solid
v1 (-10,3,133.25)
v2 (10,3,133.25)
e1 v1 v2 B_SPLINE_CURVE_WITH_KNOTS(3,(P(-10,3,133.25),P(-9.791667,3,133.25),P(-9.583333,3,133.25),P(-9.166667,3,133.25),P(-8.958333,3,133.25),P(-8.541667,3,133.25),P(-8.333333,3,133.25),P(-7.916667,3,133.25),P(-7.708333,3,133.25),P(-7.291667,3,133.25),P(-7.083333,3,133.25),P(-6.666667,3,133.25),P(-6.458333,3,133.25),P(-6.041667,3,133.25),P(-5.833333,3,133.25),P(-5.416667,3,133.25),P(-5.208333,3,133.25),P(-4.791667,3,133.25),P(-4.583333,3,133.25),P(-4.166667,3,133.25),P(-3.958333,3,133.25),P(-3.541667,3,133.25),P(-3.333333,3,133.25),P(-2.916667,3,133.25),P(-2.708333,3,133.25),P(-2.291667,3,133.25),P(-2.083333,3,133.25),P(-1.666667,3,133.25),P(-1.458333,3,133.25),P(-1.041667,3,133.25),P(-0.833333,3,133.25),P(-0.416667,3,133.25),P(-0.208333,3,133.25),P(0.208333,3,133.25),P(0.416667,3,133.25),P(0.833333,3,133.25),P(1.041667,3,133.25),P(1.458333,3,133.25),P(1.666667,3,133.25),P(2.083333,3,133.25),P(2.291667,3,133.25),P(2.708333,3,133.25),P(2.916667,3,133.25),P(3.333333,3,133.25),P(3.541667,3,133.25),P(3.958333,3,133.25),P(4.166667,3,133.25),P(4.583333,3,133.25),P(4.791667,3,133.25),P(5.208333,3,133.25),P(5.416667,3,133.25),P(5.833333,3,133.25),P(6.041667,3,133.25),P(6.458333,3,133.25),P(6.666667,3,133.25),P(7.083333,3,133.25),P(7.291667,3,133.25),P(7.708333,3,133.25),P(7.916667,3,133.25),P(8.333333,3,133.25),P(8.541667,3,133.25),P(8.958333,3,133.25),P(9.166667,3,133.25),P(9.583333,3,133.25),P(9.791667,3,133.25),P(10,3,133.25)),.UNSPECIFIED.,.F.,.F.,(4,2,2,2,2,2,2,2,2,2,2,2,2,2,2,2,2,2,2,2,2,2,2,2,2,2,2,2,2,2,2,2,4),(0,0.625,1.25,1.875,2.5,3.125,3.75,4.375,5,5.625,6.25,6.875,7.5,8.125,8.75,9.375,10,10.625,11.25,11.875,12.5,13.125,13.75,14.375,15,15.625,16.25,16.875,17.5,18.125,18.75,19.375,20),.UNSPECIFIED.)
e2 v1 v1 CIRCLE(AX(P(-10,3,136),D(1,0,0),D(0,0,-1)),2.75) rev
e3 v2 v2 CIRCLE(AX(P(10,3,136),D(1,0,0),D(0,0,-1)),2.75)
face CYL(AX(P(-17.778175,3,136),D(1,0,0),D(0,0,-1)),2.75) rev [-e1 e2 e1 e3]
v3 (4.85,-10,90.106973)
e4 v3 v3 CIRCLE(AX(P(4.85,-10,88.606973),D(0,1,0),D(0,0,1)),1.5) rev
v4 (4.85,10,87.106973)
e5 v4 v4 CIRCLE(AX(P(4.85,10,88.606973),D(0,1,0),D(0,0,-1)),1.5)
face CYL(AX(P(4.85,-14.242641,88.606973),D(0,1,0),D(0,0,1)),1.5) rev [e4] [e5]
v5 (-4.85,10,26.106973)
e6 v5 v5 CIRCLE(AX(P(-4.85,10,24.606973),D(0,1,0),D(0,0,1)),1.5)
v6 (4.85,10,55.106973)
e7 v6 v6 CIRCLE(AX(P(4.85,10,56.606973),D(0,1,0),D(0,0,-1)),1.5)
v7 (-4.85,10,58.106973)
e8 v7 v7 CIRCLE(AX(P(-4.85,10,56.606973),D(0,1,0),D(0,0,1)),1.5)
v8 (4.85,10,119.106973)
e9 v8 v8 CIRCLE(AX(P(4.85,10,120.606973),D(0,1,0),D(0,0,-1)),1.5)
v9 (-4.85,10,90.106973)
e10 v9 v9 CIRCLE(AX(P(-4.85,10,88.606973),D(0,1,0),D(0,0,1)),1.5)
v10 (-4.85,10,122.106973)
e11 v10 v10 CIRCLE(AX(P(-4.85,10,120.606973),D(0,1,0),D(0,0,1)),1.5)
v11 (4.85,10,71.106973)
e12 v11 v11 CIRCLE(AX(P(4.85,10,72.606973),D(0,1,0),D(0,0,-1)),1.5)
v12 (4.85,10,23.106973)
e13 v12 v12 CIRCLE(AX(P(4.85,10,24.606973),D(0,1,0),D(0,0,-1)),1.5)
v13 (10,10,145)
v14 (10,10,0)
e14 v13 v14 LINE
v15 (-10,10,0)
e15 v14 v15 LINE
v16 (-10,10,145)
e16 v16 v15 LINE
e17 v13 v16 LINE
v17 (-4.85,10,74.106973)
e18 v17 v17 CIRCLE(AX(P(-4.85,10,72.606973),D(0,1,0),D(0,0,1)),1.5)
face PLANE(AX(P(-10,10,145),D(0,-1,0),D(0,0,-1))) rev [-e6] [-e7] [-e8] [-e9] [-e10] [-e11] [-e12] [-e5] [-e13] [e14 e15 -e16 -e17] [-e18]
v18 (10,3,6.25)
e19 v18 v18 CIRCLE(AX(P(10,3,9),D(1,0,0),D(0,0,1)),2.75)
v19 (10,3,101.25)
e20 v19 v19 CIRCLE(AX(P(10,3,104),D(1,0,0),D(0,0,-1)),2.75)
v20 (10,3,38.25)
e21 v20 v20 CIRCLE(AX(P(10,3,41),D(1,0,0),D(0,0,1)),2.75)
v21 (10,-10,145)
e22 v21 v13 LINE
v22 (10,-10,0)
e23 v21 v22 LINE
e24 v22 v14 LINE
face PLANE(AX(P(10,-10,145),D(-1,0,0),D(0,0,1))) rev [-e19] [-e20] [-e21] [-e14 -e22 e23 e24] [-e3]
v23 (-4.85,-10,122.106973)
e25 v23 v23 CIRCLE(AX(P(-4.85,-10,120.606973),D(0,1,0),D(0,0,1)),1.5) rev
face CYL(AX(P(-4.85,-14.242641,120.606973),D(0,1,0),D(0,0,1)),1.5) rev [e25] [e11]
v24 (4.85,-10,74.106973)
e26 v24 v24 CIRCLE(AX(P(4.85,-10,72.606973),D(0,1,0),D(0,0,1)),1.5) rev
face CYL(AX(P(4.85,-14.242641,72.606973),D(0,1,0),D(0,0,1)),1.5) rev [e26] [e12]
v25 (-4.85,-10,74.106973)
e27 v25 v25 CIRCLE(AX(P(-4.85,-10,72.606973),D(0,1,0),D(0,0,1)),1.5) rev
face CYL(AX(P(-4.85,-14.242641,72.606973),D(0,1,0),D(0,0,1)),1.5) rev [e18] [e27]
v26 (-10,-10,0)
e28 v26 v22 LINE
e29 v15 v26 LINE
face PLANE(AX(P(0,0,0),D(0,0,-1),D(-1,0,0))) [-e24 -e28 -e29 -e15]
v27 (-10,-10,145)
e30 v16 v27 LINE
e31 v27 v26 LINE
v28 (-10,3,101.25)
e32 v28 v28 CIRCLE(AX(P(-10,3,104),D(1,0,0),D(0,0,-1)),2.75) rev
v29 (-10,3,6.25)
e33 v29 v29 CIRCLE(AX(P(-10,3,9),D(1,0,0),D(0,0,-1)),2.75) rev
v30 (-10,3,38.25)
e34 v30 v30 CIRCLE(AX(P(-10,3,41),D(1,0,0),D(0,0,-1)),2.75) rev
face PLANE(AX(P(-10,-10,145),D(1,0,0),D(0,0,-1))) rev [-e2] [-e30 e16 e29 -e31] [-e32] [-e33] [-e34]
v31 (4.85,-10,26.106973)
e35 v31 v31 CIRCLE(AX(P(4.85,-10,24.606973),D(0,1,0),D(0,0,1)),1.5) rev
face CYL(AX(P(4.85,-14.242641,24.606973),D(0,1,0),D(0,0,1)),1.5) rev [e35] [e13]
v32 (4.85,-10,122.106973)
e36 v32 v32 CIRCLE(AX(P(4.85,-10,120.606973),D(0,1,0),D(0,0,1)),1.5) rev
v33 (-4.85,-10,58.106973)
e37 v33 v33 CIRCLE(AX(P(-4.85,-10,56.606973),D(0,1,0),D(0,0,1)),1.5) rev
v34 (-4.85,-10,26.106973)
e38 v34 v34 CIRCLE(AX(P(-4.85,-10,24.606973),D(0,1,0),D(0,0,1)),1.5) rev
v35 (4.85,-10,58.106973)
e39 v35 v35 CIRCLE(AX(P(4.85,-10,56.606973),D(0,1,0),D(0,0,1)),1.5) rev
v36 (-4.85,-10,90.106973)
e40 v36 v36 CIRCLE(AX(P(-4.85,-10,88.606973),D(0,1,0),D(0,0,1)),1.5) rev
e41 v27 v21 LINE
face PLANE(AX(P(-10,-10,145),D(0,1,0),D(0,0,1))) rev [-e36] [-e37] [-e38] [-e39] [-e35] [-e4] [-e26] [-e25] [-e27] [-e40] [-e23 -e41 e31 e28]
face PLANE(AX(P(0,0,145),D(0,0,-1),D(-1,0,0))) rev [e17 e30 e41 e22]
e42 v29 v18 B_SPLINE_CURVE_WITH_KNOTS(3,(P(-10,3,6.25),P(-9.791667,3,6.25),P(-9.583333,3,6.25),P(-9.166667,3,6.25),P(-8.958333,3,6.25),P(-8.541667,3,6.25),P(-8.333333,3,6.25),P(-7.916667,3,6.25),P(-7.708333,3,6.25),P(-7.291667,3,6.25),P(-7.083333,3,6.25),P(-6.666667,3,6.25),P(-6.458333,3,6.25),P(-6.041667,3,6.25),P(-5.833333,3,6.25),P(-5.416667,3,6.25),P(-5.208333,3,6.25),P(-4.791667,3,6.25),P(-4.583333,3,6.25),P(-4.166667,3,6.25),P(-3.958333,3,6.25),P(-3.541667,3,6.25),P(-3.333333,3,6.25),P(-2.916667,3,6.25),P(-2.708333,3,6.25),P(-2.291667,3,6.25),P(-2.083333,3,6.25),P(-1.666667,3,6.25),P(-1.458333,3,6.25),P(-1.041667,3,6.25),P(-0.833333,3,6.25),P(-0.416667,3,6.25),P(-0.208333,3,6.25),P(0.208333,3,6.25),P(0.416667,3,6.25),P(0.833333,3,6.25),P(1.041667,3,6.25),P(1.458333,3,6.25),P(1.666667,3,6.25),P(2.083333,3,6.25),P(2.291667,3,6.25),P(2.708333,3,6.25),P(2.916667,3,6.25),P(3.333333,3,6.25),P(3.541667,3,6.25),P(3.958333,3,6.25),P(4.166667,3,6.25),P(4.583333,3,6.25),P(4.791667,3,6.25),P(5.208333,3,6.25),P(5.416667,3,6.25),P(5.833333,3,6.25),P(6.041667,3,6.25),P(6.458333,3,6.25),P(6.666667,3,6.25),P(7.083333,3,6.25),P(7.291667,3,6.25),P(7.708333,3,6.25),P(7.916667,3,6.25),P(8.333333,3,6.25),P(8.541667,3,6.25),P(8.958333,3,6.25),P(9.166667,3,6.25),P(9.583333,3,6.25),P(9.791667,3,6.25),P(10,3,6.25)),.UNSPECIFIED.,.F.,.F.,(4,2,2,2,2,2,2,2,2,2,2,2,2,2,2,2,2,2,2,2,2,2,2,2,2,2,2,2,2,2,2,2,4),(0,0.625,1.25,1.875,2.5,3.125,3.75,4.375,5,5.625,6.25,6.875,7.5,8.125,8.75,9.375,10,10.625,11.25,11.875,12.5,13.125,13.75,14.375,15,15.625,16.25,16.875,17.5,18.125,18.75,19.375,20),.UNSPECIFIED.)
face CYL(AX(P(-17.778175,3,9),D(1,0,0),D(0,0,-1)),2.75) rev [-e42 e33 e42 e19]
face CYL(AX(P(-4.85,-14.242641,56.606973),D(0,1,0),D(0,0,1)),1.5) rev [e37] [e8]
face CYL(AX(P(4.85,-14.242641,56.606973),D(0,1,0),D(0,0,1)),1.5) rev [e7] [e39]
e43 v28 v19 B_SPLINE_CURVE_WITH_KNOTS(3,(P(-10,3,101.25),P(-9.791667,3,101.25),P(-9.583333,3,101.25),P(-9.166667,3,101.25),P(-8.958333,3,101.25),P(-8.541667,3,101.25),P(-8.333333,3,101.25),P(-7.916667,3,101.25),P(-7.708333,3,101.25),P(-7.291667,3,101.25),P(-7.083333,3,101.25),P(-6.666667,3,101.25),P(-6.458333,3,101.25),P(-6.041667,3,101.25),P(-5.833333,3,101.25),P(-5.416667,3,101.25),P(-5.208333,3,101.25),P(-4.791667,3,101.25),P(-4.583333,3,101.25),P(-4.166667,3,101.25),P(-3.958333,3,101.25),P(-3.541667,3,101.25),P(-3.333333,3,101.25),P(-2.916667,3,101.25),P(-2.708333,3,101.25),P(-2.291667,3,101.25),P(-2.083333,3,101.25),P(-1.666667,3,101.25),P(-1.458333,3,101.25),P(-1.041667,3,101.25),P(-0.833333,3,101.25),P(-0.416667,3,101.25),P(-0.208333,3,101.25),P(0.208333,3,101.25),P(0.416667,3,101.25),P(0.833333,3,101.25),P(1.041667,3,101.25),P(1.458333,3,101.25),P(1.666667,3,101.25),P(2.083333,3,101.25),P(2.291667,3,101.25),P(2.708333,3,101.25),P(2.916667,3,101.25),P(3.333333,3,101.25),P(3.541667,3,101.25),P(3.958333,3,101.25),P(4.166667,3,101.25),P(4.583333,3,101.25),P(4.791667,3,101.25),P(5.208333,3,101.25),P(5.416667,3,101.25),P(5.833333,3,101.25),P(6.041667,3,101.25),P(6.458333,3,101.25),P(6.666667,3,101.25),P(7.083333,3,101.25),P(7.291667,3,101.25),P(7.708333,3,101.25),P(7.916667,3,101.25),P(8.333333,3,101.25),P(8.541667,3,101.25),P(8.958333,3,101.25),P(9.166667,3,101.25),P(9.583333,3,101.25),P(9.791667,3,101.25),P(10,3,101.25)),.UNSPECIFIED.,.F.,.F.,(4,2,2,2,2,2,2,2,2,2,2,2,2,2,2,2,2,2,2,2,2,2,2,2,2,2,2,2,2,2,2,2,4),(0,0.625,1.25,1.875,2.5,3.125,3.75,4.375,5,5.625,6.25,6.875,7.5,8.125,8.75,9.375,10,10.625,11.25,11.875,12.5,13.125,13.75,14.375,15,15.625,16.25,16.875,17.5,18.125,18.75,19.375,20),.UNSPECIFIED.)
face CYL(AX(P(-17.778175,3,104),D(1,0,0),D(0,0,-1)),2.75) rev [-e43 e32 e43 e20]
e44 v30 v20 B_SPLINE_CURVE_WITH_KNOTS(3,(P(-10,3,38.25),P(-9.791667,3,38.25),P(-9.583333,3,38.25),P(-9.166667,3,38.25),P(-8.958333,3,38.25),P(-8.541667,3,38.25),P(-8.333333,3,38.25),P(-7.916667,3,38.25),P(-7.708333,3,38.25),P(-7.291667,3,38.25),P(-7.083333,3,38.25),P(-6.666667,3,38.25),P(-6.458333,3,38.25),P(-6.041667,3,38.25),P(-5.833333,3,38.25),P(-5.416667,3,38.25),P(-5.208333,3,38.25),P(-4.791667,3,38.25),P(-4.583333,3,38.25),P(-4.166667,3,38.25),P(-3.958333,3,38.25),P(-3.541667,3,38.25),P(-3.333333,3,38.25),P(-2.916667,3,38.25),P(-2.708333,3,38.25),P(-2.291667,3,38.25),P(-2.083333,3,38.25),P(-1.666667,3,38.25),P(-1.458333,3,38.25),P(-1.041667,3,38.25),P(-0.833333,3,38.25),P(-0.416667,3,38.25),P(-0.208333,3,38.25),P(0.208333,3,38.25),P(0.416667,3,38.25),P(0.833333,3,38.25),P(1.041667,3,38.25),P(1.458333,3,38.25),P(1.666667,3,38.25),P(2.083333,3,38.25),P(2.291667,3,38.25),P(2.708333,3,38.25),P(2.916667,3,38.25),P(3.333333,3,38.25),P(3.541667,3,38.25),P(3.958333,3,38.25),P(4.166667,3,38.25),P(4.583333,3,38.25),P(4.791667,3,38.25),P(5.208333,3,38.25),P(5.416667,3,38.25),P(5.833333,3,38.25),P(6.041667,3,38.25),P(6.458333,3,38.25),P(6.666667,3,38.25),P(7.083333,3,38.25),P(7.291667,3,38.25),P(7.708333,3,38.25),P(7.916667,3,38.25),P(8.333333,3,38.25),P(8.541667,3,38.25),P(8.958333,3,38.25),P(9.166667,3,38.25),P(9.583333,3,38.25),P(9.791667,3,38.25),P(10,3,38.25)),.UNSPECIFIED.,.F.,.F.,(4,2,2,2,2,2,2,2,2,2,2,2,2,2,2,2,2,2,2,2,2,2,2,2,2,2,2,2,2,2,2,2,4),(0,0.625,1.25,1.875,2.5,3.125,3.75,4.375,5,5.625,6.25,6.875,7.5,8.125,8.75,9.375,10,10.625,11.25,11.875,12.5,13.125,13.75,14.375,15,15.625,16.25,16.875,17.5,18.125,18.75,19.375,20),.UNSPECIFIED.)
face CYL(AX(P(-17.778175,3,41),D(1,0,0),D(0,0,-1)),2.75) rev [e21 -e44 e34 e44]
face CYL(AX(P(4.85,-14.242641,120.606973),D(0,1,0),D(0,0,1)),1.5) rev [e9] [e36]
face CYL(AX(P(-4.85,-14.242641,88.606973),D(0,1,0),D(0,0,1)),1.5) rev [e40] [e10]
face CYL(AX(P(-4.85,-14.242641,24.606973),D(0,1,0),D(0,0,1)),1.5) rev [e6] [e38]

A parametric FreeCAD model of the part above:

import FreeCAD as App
import Part
import Sketcher

V = App.Vector


def add_polygon(sketch, points):
    """Adds a closed chain of lines whose ends are joined by coincident constraints."""
    first, n = sketch.GeometryCount, len(points)
    for a, b in zip(points, points[1:] + points[:1]):
        sketch.addGeometry(Part.LineSegment(App.Vector(*a, 0), App.Vector(*b, 0)), False)
    for i in range(n):
        sketch.addConstraint(Sketcher.Constraint("Coincident", first + i, 2, first + (i + 1) % n, 1))

doc = App.newDocument("Part")
body = doc.addObject("PartDesign::Body", "Body")

# Sketch on XY plane
sketch1 = doc.addObject("Sketcher::SketchObject", "Sketch")
body.addObject(sketch1)
sketch1.AttachmentSupport = (doc.XY_Plane, [""])
sketch1.MapMode = "FlatFace"
add_polygon(sketch1, [(-10, 10), (-10, -10), (10, -10), (10, 10)])  # lines 0-3
sketch1.addConstraint([
    Sketcher.Constraint("Vertical", 0),
    Sketcher.Constraint("Horizontal", 1),
    Sketcher.Constraint("Vertical", 2),
    Sketcher.Constraint("Horizontal", 3),
    Sketcher.Constraint("Symmetric", 0, 2, 2, 2, -1, 1),
    Sketcher.Constraint("Equal", 3, 0),
    Sketcher.Constraint("DistanceX", 1, 1, 1, 2, 20.0),
])
pad1 = doc.addObject("PartDesign::Pad", "Pad")
body.addObject(pad1)
pad1.Profile = sketch1
pad1.Length = 145

# Sketch on YZ plane
sketch2 = doc.addObject("Sketcher::SketchObject", "Sketch001")
body.addObject(sketch2)
sketch2.AttachmentSupport = (doc.YZ_Plane, [""])
sketch2.MapMode = "FlatFace"
sketch2.AttachmentOffset = App.Placement(V(0, 0, 10), App.Rotation())
sketch2.addGeometry([
    Part.Circle(V(3, 136, 0), V(0, 0, 1), 2.8),
    Part.Circle(V(3, 104, 0), V(0, 0, 1), 2.8),
    Part.Circle(V(3, 9, 0), V(0, 0, 1), 2.8),
    Part.Circle(V(3, 41, 0), V(0, 0, 1), 2.8),
], False)
sketch2.addConstraint([
    Sketcher.Constraint("Equal", 0, 1),
    Sketcher.Constraint("Equal", 1, 2),
    Sketcher.Constraint("Equal", 2, 3),
    Sketcher.Constraint("Vertical", 0, 3, 1, 3),
    Sketcher.Constraint("Vertical", 1, 3, 2, 3),
    Sketcher.Constraint("Vertical", 2, 3, 3, 3),
    Sketcher.Constraint("Diameter", 0, 5.5),
    Sketcher.Constraint("DistanceX", -1, 1, 0, 3, 3.0),
    Sketcher.Constraint("DistanceY", -1, 1, 0, 3, 136.0),
    Sketcher.Constraint("DistanceY", -1, 1, 1, 3, 104.0),
    Sketcher.Constraint("DistanceY", -1, 1, 2, 3, 9.0),
    Sketcher.Constraint("DistanceY", -1, 1, 3, 3, 41.0),
])
pocket1 = doc.addObject("PartDesign::Pocket", "Pocket")
body.addObject(pocket1)
pocket1.Profile = sketch2
pocket1.Length = 20

# Sketch on XZ plane
sketch3 = doc.addObject("Sketcher::SketchObject", "Sketch002")
body.addObject(sketch3)
sketch3.AttachmentSupport = (doc.XZ_Plane, [""])
sketch3.MapMode = "FlatFace"
sketch3.AttachmentOffset = App.Placement(V(0, 0, -10), App.Rotation())
sketch3.addGeometry([
    Part.Circle(V(-4.8, 24.6, 0), V(0, 0, 1), 1.5),  # 0
    Part.Circle(V(-4.8, 56.6, 0), V(0, 0, 1), 1.5),  # 1
    Part.Circle(V(-4.8, 72.6, 0), V(0, 0, 1), 1.5),  # 2
    Part.Circle(V(-4.8, 88.6, 0), V(0, 0, 1), 1.5),  # 3
    Part.Circle(V(-4.8, 120.6, 0), V(0, 0, 1), 1.5),  # 4
    Part.Circle(V(4.8, 120.6, 0), V(0, 0, 1), 1.5),  # 5
    Part.Circle(V(4.8, 88.6, 0), V(0, 0, 1), 1.5),  # 6
    Part.Circle(V(4.8, 72.6, 0), V(0, 0, 1), 1.5),  # 7
    Part.Circle(V(4.8, 56.6, 0), V(0, 0, 1), 1.5),  # 8
    Part.Circle(V(4.8, 24.6, 0), V(0, 0, 1), 1.5),  # 9
], False)
sketch3.addConstraint([
    Sketcher.Constraint("Equal", 0, 1),
    Sketcher.Constraint("Equal", 1, 2),
    Sketcher.Constraint("Equal", 2, 3),
    Sketcher.Constraint("Equal", 3, 4),
    Sketcher.Constraint("Equal", 4, 5),
    Sketcher.Constraint("Equal", 5, 6),
    Sketcher.Constraint("Equal", 6, 7),
    Sketcher.Constraint("Equal", 7, 8),
    Sketcher.Constraint("Equal", 8, 9),
    Sketcher.Constraint("Symmetric", 4, 3, 5, 3, -2),
    Sketcher.Constraint("Symmetric", 3, 3, 6, 3, -2),
    Sketcher.Constraint("Symmetric", 2, 3, 7, 3, -2),
    Sketcher.Constraint("Symmetric", 1, 3, 8, 3, -2),
    Sketcher.Constraint("Symmetric", 0, 3, 9, 3, -2),
    Sketcher.Constraint("Vertical", 0, 3, 1, 3),
    Sketcher.Constraint("Vertical", 1, 3, 2, 3),
    Sketcher.Constraint("Vertical", 2, 3, 3, 3),
    Sketcher.Constraint("Vertical", 3, 3, 4, 3),
    Sketcher.Constraint("Diameter", 0, 3.0),
    Sketcher.Constraint("DistanceY", 0, 3, 1, 3, 32.0),
    Sketcher.Constraint("DistanceY", 1, 3, 2, 3, 16.0),
    Sketcher.Constraint("DistanceY", 2, 3, 3, 3, 16.0),
    Sketcher.Constraint("DistanceY", 3, 3, 4, 3, 32.0),
    Sketcher.Constraint("DistanceX", 4, 3, 5, 3, 9.7),
    Sketcher.Constraint("DistanceY", -1, 1, 0, 3, 24.606973),
])
pocket2 = doc.addObject("PartDesign::Pocket", "Pocket001")
body.addObject(pocket2)
pocket2.Profile = sketch3
pocket2.Length = 20
pocket2.Reversed = True

doc.recompute()
